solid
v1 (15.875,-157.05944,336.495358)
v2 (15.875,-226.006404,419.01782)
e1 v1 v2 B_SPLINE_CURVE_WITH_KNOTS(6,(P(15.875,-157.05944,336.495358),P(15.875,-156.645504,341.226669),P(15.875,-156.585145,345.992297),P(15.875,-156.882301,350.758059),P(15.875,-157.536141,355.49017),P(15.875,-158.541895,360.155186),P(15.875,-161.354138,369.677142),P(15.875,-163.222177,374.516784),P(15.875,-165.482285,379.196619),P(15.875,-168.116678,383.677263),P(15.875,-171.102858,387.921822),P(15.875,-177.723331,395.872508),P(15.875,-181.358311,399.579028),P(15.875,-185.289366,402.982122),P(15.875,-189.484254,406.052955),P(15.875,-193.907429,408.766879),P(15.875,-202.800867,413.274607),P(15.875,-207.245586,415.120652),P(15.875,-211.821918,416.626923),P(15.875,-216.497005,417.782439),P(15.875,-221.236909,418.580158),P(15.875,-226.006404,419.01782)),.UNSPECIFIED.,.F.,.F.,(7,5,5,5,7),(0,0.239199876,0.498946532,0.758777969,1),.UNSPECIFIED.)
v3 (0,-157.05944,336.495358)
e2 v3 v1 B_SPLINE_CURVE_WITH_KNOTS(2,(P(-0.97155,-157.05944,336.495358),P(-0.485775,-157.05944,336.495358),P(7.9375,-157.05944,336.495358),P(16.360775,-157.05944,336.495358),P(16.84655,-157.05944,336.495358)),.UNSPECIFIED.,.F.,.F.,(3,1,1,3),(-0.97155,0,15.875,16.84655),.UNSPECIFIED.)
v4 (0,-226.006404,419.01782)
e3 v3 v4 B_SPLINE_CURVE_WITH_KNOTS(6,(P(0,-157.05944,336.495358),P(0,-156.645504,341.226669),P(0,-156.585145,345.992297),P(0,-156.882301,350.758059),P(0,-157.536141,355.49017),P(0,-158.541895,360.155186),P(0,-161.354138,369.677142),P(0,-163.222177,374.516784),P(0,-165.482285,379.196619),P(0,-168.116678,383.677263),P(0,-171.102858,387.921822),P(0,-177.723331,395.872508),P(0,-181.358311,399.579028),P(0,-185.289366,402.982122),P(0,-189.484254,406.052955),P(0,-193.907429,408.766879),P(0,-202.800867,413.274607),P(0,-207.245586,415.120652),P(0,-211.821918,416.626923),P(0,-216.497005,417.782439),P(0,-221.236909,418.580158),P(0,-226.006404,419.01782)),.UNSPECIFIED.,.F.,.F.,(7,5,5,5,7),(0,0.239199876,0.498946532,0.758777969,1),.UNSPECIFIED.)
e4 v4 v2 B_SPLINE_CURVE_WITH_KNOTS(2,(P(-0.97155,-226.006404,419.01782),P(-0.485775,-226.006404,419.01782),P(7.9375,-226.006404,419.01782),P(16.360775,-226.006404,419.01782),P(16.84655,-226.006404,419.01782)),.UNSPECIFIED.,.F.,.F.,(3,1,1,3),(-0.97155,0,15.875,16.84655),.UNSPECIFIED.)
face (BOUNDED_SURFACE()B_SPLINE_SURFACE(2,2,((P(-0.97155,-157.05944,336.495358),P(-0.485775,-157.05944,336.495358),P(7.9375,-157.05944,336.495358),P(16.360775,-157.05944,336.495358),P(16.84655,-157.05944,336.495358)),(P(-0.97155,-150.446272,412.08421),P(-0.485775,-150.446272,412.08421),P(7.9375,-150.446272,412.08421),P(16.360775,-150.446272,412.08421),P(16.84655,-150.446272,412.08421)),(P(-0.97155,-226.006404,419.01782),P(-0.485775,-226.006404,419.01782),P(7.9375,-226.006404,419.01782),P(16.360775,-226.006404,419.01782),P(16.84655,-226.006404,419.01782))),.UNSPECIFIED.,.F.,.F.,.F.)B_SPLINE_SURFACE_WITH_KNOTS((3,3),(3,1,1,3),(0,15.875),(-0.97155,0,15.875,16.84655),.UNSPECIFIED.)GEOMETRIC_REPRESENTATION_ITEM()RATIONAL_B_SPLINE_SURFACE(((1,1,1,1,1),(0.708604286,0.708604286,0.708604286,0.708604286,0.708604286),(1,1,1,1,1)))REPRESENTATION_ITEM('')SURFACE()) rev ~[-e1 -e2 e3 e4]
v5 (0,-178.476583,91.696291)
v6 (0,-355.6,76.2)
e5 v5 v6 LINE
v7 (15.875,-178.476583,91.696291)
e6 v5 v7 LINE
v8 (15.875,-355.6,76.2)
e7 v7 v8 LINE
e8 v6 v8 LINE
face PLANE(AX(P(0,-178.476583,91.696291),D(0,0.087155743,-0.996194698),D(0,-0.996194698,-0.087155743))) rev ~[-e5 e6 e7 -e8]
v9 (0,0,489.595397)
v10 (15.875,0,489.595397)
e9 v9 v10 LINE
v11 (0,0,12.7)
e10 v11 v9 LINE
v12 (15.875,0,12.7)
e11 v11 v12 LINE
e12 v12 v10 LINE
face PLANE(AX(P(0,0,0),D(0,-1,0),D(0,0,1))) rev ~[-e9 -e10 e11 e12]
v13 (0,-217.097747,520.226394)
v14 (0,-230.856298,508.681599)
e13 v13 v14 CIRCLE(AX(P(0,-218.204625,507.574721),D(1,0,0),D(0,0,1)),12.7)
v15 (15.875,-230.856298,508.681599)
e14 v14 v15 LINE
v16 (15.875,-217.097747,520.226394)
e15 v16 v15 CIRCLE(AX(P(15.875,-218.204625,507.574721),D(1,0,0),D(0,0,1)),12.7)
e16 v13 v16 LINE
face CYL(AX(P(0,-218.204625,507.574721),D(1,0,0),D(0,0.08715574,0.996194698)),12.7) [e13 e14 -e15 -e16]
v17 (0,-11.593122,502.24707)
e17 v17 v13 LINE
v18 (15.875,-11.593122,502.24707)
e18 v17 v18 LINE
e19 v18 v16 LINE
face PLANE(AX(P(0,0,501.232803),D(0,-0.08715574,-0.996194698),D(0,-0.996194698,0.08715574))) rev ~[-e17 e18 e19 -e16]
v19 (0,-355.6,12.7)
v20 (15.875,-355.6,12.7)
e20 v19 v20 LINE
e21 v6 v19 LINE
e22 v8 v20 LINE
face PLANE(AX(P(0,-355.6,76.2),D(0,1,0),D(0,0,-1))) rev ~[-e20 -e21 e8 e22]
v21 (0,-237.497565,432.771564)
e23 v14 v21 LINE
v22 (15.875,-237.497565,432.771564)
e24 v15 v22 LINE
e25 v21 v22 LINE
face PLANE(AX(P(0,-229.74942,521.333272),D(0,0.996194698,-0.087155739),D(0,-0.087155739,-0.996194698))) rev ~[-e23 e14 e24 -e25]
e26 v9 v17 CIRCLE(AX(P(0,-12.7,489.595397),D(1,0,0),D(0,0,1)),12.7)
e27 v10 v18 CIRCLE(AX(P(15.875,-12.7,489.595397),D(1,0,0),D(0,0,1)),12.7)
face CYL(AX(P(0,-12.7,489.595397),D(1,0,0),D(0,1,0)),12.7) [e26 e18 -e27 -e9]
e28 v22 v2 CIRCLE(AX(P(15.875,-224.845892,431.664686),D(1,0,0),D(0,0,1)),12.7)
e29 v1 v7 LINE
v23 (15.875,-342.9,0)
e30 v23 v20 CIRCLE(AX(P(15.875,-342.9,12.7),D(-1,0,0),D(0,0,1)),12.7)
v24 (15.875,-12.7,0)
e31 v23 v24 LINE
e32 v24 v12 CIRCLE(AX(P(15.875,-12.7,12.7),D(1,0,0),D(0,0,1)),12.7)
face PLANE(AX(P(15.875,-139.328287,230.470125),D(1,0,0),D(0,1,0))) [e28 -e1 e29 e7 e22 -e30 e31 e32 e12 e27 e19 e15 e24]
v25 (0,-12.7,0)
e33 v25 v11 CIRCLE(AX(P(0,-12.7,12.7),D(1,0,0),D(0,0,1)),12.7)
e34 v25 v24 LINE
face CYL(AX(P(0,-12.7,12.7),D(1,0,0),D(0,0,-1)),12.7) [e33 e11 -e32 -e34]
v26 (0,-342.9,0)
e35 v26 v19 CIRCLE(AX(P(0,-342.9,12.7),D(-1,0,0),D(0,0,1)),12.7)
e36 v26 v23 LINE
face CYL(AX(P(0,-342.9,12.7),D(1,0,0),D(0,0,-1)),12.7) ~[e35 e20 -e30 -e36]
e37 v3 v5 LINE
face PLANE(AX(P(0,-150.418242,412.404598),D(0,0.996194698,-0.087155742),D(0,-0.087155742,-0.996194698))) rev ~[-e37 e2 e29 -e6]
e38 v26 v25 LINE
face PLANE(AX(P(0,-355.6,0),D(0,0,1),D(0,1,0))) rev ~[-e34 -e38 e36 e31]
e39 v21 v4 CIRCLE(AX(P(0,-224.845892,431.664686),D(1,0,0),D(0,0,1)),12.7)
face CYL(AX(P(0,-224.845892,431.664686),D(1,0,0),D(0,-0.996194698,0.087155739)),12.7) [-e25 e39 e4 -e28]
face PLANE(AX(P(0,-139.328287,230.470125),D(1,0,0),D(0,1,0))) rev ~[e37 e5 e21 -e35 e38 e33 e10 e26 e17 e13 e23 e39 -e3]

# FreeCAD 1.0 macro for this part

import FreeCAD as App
import Part
import Sketcher
Q = App.Units.Quantity


def edges_at(feature, points):
    """Names of the edges that pass closest to the given points."""
    edges = feature.Shape.Edges
    near = lambda p: min(range(len(edges)), key=lambda i: edges[i].distToShape(Part.Vertex(*p))[0])
    return sorted({f"Edge{near(p) + 1}" for p in points})

doc = App.newDocument("Part")
body = doc.addObject("PartDesign::Body", "Body")

# Sketch on YZ plane
sketch1 = body.newObject("Sketcher::SketchObject", "Sketch")
sketch1.AttachmentSupport = (doc.getObject("YZ_Plane"), [""])
sketch1.MapMode = "FlatFace"
sketch1.addGeometry([
    Part.LineSegment(App.Vector(-356, 0, 0), App.Vector(0, 0, 0)),  # 0
    Part.LineSegment(App.Vector(0, 0, 0), App.Vector(0, 501, 0)),  # 1
    Part.LineSegment(App.Vector(0, 501, 0), App.Vector(-230, 521, 0)),  # 2
    Part.LineSegment(App.Vector(-230, 521, 0), App.Vector(-239, 420, 0)),  # 3
    Part.LineSegment(App.Vector(-239, 420, 0), App.Vector(-150, 412, 0)),  # 4
    Part.LineSegment(App.Vector(-150, 412, 0), App.Vector(-178, 92, 0)),  # 5
    Part.LineSegment(App.Vector(-178, 92, 0), App.Vector(-356, 76, 0)),  # 6
    Part.LineSegment(App.Vector(-356, 76, 0), App.Vector(-356, 0, 0)),  # 7
], False)
sketch1.addConstraint([
    Sketcher.Constraint("Coincident", 0, 2, 1, 1),
    Sketcher.Constraint("Coincident", 1, 2, 2, 1),
    Sketcher.Constraint("Coincident", 2, 2, 3, 1),
    Sketcher.Constraint("Coincident", 3, 2, 4, 1),
    Sketcher.Constraint("Coincident", 4, 2, 5, 1),
    Sketcher.Constraint("Coincident", 5, 2, 6, 1),
    Sketcher.Constraint("Coincident", 6, 2, 7, 1),
    Sketcher.Constraint("Coincident", 7, 2, 0, 1),
    Sketcher.Constraint("Horizontal", 0),
    Sketcher.Constraint("Vertical", 1),
    Sketcher.Constraint("Vertical", 7),
    Sketcher.Constraint("Coincident", 0, 2, -1, 1),
    Sketcher.Constraint("Perpendicular", 2, 3),
    Sketcher.Constraint("Perpendicular", 3, 4),
    Sketcher.Constraint("Perpendicular", 4, 5),
    Sketcher.Constraint("DistanceX", 0, 1, 0, 2, Q("14 in")),
    Sketcher.Constraint("DistanceY", 7, 2, 7, 1, Q("3 in")),
    Sketcher.Constraint("Distance", 3, Q("4 in")),
    Sketcher.Constraint("Distance", 6, Q("7 in")),
    Sketcher.Constraint("Angle", 2, Q("175 deg")),
    Sketcher.Constraint("Angle", 6, Q("-175 deg")),
    Sketcher.Constraint("DistanceY", -1, 1, 4, 2, 412.404598),
    Sketcher.Constraint("DistanceX", 3, 2, 4, 2, 88.186201),
])
pad1 = body.newObject("PartDesign::Pad", "Pad")
pad1.Profile = sketch1
pad1.Length = Q("0.625 in")
doc.recompute()

fillet = body.newObject("PartDesign::Fillet", "Fillet")
fillet.Base = (pad1, edges_at(pad1, [
    (7.938, -355.6, 0),
    (7.938, 0, 0),
    (7.938, 0, 501.233),
    (7.938, -238.604, 420.12),
    (7.938, -229.749, 521.333),
]))
fillet.Radius = Q("0.5 in")
doc.recompute()

fillet2 = body.newObject("PartDesign::Fillet", "Fillet001")
fillet2.Base = (fillet, edges_at(fillet, [(7.938, -150.418, 412.405)]))
fillet2.Radius = Q("3 in")

doc.recompute()
